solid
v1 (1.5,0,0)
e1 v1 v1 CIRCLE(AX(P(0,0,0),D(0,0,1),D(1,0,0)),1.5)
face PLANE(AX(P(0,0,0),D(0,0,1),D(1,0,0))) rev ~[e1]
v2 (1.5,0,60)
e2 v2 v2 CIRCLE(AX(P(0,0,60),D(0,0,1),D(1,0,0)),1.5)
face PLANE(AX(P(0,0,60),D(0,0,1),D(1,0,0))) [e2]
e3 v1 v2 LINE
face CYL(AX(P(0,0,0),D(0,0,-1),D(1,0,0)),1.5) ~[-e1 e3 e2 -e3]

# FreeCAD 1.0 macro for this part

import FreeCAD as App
import Part
import Sketcher
Q = App.Units.Quantity

doc = App.newDocument("Part")
params = doc.addObject("Spreadsheet::Sheet", "Params")
for row, (alias, value) in enumerate([
    ("sketch1_diameter", "3 mm"),
    ("pad1_length", "60 mm"),
], start=1):
    params.set(f"A{row}", alias)
    params.set(f"B{row}", "=" + value)
    params.setAlias(f"B{row}", alias)

body = doc.addObject("PartDesign::Body", "Body")

# Sketch on XY plane
sketch1 = doc.addObject("Sketcher::SketchObject", "Sketch")
body.addObject(sketch1)
sketch1.AttachmentSupport = (doc.XY_Plane, [""])
sketch1.MapMode = "FlatFace"
sketch1.addGeometry(Part.Circle(App.Vector(0, 0, 0), App.Vector(0, 0, 1), 1.5), False)
sketch1.addConstraint([
    Sketcher.Constraint("Coincident", 0, 3, -1, 1),
    Sketcher.Constraint("Diameter", 0, Q("3 mm")),
])
sketch1.setExpression("Constraints[1]", "Params.sketch1_diameter")
pad1 = doc.addObject("PartDesign::Pad", "Pad")
body.addObject(pad1)
pad1.Profile = sketch1
pad1.setExpression("Length", "Params.pad1_length")

doc.recompute()
